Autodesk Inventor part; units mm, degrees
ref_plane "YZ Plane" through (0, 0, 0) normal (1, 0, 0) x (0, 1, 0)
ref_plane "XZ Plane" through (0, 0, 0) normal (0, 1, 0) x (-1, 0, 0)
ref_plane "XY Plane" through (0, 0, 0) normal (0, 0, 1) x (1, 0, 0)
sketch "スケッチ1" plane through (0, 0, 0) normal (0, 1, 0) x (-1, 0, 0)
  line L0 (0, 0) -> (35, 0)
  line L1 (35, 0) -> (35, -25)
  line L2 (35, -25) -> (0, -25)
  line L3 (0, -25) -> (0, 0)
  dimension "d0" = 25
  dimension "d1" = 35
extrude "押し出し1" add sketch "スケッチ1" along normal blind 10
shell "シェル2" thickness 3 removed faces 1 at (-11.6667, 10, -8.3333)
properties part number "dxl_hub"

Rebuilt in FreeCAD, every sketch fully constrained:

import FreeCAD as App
import Part
import Sketcher

V = App.Vector
Q = App.Units.Quantity


def faces_at(feature, points):
    """Names of the faces that lie closest to the given points."""
    faces = feature.Shape.Faces
    near = lambda p: min(range(len(faces)), key=lambda i: faces[i].distToShape(Part.Vertex(*p))[0])
    return sorted({f"Face{near(p) + 1}" for p in points})


def add_polygon(sketch, points):
    """Adds a closed chain of lines whose ends are joined by coincident constraints."""
    first, n = sketch.GeometryCount, len(points)
    for a, b in zip(points, points[1:] + points[:1]):
        sketch.addGeometry(Part.LineSegment(App.Vector(*a, 0), App.Vector(*b, 0)), False)
    for i in range(n):
        sketch.addConstraint(Sketcher.Constraint("Coincident", first + i, 2, first + (i + 1) % n, 1))

doc = App.newDocument("Part")
body = doc.addObject("PartDesign::Body", "Body")

# Sketch on XZ plane
sketch1 = doc.addObject("Sketcher::SketchObject", "Sketch")
body.addObject(sketch1)
sketch1.AttachmentSupport = (doc.XZ_Plane, [""])
sketch1.MapMode = "FlatFace"
add_polygon(sketch1, [(-35, 0), (0, 0), (0, -25), (-35, -25)])  # lines 0-3
sketch1.addConstraint(Sketcher.Constraint("Horizontal", 0))
sketch1.addConstraint(Sketcher.Constraint("Vertical", 1))
sketch1.addConstraint(Sketcher.Constraint("Horizontal", 2))
sketch1.addConstraint(Sketcher.Constraint("Vertical", 3))
sketch1.addConstraint(Sketcher.Constraint("Coincident", 0, 2, -1, 1))
sketch1.addConstraint(Sketcher.Constraint("DistanceX", 0, 1, 0, 2, Q("35 mm")))
sketch1.addConstraint(Sketcher.Constraint("DistanceY", 1, 2, 1, 1, Q("25 mm")))
pad1 = doc.addObject("PartDesign::Pad", "Pad")
body.addObject(pad1)
pad1.Profile = sketch1
pad1.Length = 10
pad1.Reversed = True
doc.recompute()

thickness = doc.addObject("PartDesign::Thickness", "Thickness")
body.addObject(thickness)
thickness.Base = (pad1, faces_at(pad1, [(-11.667, 10, -8.333)]))
thickness.Value = 3
thickness.Reversed = True
thickness.Join = "Intersection"

doc.recompute()
